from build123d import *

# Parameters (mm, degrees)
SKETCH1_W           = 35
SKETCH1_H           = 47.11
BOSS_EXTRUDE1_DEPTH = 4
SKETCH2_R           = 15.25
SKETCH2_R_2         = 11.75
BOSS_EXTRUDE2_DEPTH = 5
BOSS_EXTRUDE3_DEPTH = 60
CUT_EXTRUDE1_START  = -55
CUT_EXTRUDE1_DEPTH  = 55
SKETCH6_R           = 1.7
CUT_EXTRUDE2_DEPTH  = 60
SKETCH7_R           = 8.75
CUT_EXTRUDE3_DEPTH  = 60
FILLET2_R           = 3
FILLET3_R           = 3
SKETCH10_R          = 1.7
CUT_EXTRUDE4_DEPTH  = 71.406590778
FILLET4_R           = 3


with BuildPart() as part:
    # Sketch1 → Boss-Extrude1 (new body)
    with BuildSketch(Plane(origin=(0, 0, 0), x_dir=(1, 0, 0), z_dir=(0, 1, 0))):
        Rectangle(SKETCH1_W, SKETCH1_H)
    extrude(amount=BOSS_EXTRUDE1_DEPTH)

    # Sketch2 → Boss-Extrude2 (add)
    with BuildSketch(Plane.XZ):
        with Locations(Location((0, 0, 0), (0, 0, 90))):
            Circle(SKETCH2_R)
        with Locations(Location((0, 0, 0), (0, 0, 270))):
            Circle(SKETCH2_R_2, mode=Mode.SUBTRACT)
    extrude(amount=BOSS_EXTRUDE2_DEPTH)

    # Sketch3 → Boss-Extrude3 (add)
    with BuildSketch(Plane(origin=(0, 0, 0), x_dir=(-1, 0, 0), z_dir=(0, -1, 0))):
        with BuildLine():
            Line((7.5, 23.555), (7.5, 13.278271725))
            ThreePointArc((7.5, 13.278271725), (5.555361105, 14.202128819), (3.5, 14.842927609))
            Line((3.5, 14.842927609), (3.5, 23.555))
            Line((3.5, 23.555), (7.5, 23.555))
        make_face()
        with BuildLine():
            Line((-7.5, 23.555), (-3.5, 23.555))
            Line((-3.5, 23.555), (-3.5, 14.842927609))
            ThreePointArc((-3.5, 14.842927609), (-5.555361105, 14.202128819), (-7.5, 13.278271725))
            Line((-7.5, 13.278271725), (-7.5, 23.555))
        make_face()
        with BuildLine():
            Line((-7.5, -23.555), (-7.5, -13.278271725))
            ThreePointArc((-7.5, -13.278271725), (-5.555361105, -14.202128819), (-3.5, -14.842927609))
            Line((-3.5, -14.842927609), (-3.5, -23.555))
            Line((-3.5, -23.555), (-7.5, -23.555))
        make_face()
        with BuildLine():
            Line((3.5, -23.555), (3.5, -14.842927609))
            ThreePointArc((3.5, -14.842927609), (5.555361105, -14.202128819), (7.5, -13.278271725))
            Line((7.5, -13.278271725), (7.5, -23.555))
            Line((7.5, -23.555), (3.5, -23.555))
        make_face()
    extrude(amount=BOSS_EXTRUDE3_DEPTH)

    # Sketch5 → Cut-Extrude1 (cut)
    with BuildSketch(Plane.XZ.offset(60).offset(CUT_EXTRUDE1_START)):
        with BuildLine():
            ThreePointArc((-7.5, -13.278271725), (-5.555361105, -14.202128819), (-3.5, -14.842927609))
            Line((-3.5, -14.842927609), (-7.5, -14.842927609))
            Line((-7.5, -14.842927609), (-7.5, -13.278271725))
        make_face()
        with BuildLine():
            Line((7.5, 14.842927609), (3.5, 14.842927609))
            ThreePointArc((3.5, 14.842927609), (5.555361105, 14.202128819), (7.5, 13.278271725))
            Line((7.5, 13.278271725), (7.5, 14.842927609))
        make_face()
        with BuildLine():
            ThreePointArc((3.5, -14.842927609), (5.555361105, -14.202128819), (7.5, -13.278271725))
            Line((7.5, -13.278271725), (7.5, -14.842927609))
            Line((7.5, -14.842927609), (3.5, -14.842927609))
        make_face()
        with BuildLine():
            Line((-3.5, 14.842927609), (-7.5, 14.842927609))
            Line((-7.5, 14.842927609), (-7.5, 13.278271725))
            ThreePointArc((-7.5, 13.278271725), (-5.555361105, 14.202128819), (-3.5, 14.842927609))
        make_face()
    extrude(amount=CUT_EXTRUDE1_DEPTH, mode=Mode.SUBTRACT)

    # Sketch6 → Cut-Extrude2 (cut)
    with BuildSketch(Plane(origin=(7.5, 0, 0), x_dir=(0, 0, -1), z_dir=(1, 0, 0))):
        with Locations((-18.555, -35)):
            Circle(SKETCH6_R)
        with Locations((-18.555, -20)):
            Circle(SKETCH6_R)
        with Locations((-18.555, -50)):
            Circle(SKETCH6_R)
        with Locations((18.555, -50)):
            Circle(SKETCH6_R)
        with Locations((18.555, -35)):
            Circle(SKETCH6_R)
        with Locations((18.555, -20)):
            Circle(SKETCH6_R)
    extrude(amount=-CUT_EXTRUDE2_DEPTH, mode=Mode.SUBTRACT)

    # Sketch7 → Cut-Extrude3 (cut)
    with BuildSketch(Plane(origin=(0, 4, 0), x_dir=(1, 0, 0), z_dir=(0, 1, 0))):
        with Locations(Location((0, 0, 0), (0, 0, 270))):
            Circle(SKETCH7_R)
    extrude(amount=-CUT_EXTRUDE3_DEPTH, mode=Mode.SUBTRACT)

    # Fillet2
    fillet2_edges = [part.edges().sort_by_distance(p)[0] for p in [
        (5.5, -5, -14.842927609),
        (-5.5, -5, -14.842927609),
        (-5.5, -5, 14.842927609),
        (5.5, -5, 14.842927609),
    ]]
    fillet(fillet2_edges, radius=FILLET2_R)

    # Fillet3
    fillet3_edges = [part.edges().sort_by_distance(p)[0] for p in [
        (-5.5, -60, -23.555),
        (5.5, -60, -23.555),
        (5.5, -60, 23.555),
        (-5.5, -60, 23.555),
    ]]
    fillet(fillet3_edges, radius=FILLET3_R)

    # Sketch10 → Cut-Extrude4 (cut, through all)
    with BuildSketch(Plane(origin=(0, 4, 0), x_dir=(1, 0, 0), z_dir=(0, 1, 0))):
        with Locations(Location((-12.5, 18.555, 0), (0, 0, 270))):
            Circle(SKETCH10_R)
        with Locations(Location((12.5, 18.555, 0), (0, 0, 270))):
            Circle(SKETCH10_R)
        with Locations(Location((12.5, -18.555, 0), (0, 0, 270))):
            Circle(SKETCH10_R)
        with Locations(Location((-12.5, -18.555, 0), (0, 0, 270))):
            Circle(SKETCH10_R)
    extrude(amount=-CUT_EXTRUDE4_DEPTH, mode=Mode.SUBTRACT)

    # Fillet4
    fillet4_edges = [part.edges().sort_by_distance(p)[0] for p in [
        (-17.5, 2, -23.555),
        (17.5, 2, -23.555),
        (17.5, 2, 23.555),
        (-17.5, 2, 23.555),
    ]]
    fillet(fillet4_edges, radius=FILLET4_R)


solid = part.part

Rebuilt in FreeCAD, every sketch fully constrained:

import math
import FreeCAD as App
import Part
import Sketcher


def edges_at(feature, points):
    """Names of the edges that pass closest to the given points."""
    edges = feature.Shape.Edges
    near = lambda p: min(range(len(edges)), key=lambda i: edges[i].distToShape(Part.Vertex(*p))[0])
    return sorted({f"Edge{near(p) + 1}" for p in points})


def add_polygon(sketch, points):
    """Adds a closed chain of lines whose ends are joined by coincident constraints."""
    first, n = sketch.GeometryCount, len(points)
    for a, b in zip(points, points[1:] + points[:1]):
        sketch.addGeometry(Part.LineSegment(App.Vector(*a, 0), App.Vector(*b, 0)), False)
    for i in range(n):
        sketch.addConstraint(Sketcher.Constraint("Coincident", first + i, 2, first + (i + 1) % n, 1))

doc = App.newDocument("Part")
body = doc.addObject("PartDesign::Body", "Body")

sketch1 = doc.addObject("Sketcher::SketchObject", "Sketch")
body.addObject(sketch1)
sketch1.AttachmentSupport = (doc.XZ_Plane, [""])
sketch1.MapMode = "FlatFace"
add_polygon(sketch1, [(-18, -24), (-18, 24), (18, 24), (18, -24)])
sketch1.addConstraint(Sketcher.Constraint("Vertical", 0))
sketch1.addConstraint(Sketcher.Constraint("Horizontal", 1))
sketch1.addConstraint(Sketcher.Constraint("Vertical", 2))
sketch1.addConstraint(Sketcher.Constraint("Horizontal", 3))
sketch1.addConstraint(Sketcher.Constraint("Symmetric", 0, 2, 2, 2, -1, 1))
sketch1.addConstraint(Sketcher.Constraint("DistanceX", 1, 1, 1, 2, 35.0))
sketch1.addConstraint(Sketcher.Constraint("DistanceY", 0, 1, 0, 2, 47.11))
pad1 = doc.addObject("PartDesign::Pad", "Pad")
body.addObject(pad1)
pad1.Profile = sketch1
pad1.Length = 4
pad1.Reversed = True

sketch2 = doc.addObject("Sketcher::SketchObject", "Sketch001")
body.addObject(sketch2)
sketch2.AttachmentSupport = (doc.XZ_Plane, [""])
sketch2.MapMode = "FlatFace"
sketch2.addGeometry(Part.Circle(App.Vector(0, 0, 0), App.Vector(0, 0, 1), 15), False)
sketch2.addGeometry(Part.Circle(App.Vector(0, 0, 0), App.Vector(0, 0, 1), 12), False)
sketch2.addConstraint(Sketcher.Constraint("Coincident", 0, 3, -1, 1))
sketch2.addConstraint(Sketcher.Constraint("Coincident", 1, 3, -1, 1))
sketch2.addConstraint(Sketcher.Constraint("Diameter", 0, 30.5))
sketch2.addConstraint(Sketcher.Constraint("Diameter", 1, 23.5))
pad2 = doc.addObject("PartDesign::Pad", "Pad001")
body.addObject(pad2)
pad2.Profile = sketch2
pad2.Length = 5

sketch3 = doc.addObject("Sketcher::SketchObject", "Sketch002")
body.addObject(sketch3)
sketch3.AttachmentSupport = (doc.XZ_Plane, [""])
sketch3.MapMode = "FlatFace"
sketch3.addGeometry(Part.LineSegment(App.Vector(-7.5, -13.3, 0), App.Vector(-7.5, -23.6, 0)), False)
sketch3.addGeometry(Part.LineSegment(App.Vector(-7.5, -23.6, 0), App.Vector(-3.5, -23.6, 0)), False)
sketch3.addGeometry(Part.LineSegment(App.Vector(-3.5, -23.6, 0), App.Vector(-3.5, -14.8, 0)), False)
sketch3.addGeometry(Part.ArcOfCircle(Part.Circle(App.Vector(0, 0, 0), App.Vector(0, 0, 1), 15.3), math.radians(-119.46), math.radians(-103.27)), False)
sketch3.addGeometry(Part.LineSegment(App.Vector(3.5, -23.6, 0), App.Vector(7.5, -23.6, 0)), False)
sketch3.addGeometry(Part.LineSegment(App.Vector(7.5, -23.6, 0), App.Vector(7.5, -13.3, 0)), False)
sketch3.addGeometry(Part.ArcOfCircle(Part.Circle(App.Vector(0, 0, 0), App.Vector(0, 0, 1), 15.3), math.radians(-76.73), math.radians(-60.54)), False)
sketch3.addGeometry(Part.LineSegment(App.Vector(3.5, -14.8, 0), App.Vector(3.5, -23.6, 0)), False)
sketch3.addGeometry(Part.LineSegment(App.Vector(7.5, 13.3, 0), App.Vector(7.5, 23.6, 0)), False)
sketch3.addGeometry(Part.LineSegment(App.Vector(7.5, 23.6, 0), App.Vector(3.5, 23.6, 0)), False)
sketch3.addGeometry(Part.LineSegment(App.Vector(3.5, 23.6, 0), App.Vector(3.5, 14.8, 0)), False)
sketch3.addGeometry(Part.ArcOfCircle(Part.Circle(App.Vector(0, 0, 0), App.Vector(0, 0, 1), 15.3), math.radians(60.54), math.radians(76.73)), False)
sketch3.addGeometry(Part.LineSegment(App.Vector(-3.5, 14.8, 0), App.Vector(-3.5, 23.6, 0)), False)
sketch3.addGeometry(Part.LineSegment(App.Vector(-3.5, 23.6, 0), App.Vector(-7.5, 23.6, 0)), False)
sketch3.addGeometry(Part.LineSegment(App.Vector(-7.5, 23.6, 0), App.Vector(-7.5, 13.3, 0)), False)
sketch3.addGeometry(Part.ArcOfCircle(Part.Circle(App.Vector(0, 0, 0), App.Vector(0, 0, 1), 15.3), math.radians(103.27), math.radians(119.46)), False)
sketch3.addConstraint(Sketcher.Constraint("Coincident", 0, 2, 1, 1))
sketch3.addConstraint(Sketcher.Constraint("Coincident", 1, 2, 2, 1))
sketch3.addConstraint(Sketcher.Constraint("Coincident", 2, 2, 3, 2))
sketch3.addConstraint(Sketcher.Constraint("Coincident", 3, 1, 0, 1))
sketch3.addConstraint(Sketcher.Constraint("Coincident", 4, 2, 5, 1))
sketch3.addConstraint(Sketcher.Constraint("Coincident", 5, 2, 6, 2))
sketch3.addConstraint(Sketcher.Constraint("Coincident", 6, 1, 7, 1))
sketch3.addConstraint(Sketcher.Constraint("Coincident", 7, 2, 4, 1))
sketch3.addConstraint(Sketcher.Constraint("Coincident", 8, 2, 9, 1))
sketch3.addConstraint(Sketcher.Constraint("Coincident", 9, 2, 10, 1))
sketch3.addConstraint(Sketcher.Constraint("Coincident", 10, 2, 11, 2))
sketch3.addConstraint(Sketcher.Constraint("Coincident", 11, 1, 8, 1))
sketch3.addConstraint(Sketcher.Constraint("Coincident", 12, 2, 13, 1))
sketch3.addConstraint(Sketcher.Constraint("Coincident", 13, 2, 14, 1))
sketch3.addConstraint(Sketcher.Constraint("Coincident", 14, 2, 15, 2))
sketch3.addConstraint(Sketcher.Constraint("Coincident", 15, 1, 12, 1))
sketch3.addConstraint(Sketcher.Constraint("Vertical", 0))
sketch3.addConstraint(Sketcher.Constraint("Horizontal", 1))
sketch3.addConstraint(Sketcher.Constraint("Vertical", 2))
sketch3.addConstraint(Sketcher.Constraint("Horizontal", 4))
sketch3.addConstraint(Sketcher.Constraint("Vertical", 5))
sketch3.addConstraint(Sketcher.Constraint("Vertical", 7))
sketch3.addConstraint(Sketcher.Constraint("Vertical", 8))
sketch3.addConstraint(Sketcher.Constraint("Horizontal", 9))
sketch3.addConstraint(Sketcher.Constraint("Vertical", 10))
sketch3.addConstraint(Sketcher.Constraint("Vertical", 12))
sketch3.addConstraint(Sketcher.Constraint("Horizontal", 13))
sketch3.addConstraint(Sketcher.Constraint("Vertical", 14))
sketch3.addConstraint(Sketcher.Constraint("Coincident", 3, 3, -1, 1))
sketch3.addConstraint(Sketcher.Constraint("Coincident", 6, 3, -1, 1))
sketch3.addConstraint(Sketcher.Constraint("Coincident", 11, 3, -1, 1))
sketch3.addConstraint(Sketcher.Constraint("Coincident", 15, 3, -1, 1))
sketch3.addConstraint(Sketcher.Constraint("Equal", 3, 6))
sketch3.addConstraint(Sketcher.Constraint("Equal", 6, 11))
sketch3.addConstraint(Sketcher.Constraint("Equal", 11, 15))
sketch3.addConstraint(Sketcher.Constraint("Symmetric", 0, 2, 8, 2, -1, 1))
sketch3.addConstraint(Sketcher.Constraint("Symmetric", 7, 2, 12, 2, -1, 1))
sketch3.addConstraint(Sketcher.Constraint("Symmetric", 0, 2, 4, 2, -2))
sketch3.addConstraint(Sketcher.Constraint("Horizontal", 2, 2, 6, 1))
sketch3.addConstraint(Sketcher.Constraint("Horizontal", 11, 1, 14, 2))
sketch3.addConstraint(Sketcher.Constraint("Horizontal", 10, 2, 15, 1))
sketch3.addConstraint(Sketcher.Constraint("DistanceX", 1, 1, 1, 2, 4.0))
sketch3.addConstraint(Sketcher.Constraint("Radius", 3, 15.25))
sketch3.addConstraint(Sketcher.Constraint("DistanceX", 1, 2, 4, 2, 11.0))
sketch3.addConstraint(Sketcher.Constraint("DistanceY", 0, 2, -1, 1, 23.555))
pad3 = doc.addObject("PartDesign::Pad", "Pad002")
body.addObject(pad3)
pad3.Profile = sketch3
pad3.Length = 60

sketch4 = doc.addObject("Sketcher::SketchObject", "Sketch003")
body.addObject(sketch4)
sketch4.AttachmentSupport = (doc.XZ_Plane, [""])
sketch4.MapMode = "FlatFace"
sketch4.AttachmentOffset = App.Placement(App.Vector(0, 0, 5), App.Rotation())
sketch4.addGeometry(Part.ArcOfCircle(Part.Circle(App.Vector(0, 0, 0), App.Vector(0, 0, 1), 15.3), math.radians(-119.46), math.radians(-103.27)), False)
sketch4.addGeometry(Part.LineSegment(App.Vector(-7.5, -13.3, 0), App.Vector(-7.5, -14.8, 0)), False)
sketch4.addGeometry(Part.LineSegment(App.Vector(-7.5, -14.8, 0), App.Vector(-3.5, -14.8, 0)), False)
sketch4.addGeometry(Part.LineSegment(App.Vector(7.5, 14.8, 0), App.Vector(3.5, 14.8, 0)), False)
sketch4.addGeometry(Part.ArcOfCircle(Part.Circle(App.Vector(0, 0, 0), App.Vector(0, 0, 1), 15.3), math.radians(60.54), math.radians(76.73)), False)
sketch4.addGeometry(Part.LineSegment(App.Vector(7.5, 13.3, 0), App.Vector(7.5, 14.8, 0)), False)
sketch4.addGeometry(Part.ArcOfCircle(Part.Circle(App.Vector(0, 0, 0), App.Vector(0, 0, 1), 15.3), math.radians(-76.73), math.radians(-60.54)), False)
sketch4.addGeometry(Part.LineSegment(App.Vector(3.5, -14.8, 0), App.Vector(7.5, -14.8, 0)), False)
sketch4.addGeometry(Part.LineSegment(App.Vector(7.5, -14.8, 0), App.Vector(7.5, -13.3, 0)), False)
sketch4.addGeometry(Part.LineSegment(App.Vector(-3.5, 14.8, 0), App.Vector(-7.5, 14.8, 0)), False)
sketch4.addGeometry(Part.LineSegment(App.Vector(-7.5, 14.8, 0), App.Vector(-7.5, 13.3, 0)), False)
sketch4.addGeometry(Part.ArcOfCircle(Part.Circle(App.Vector(0, 0, 0), App.Vector(0, 0, 1), 15.3), math.radians(103.27), math.radians(119.46)), False)
sketch4.addConstraint(Sketcher.Constraint("Coincident", 0, 1, 1, 1))
sketch4.addConstraint(Sketcher.Constraint("Coincident", 1, 2, 2, 1))
sketch4.addConstraint(Sketcher.Constraint("Coincident", 2, 2, 0, 2))
sketch4.addConstraint(Sketcher.Constraint("Coincident", 3, 2, 4, 2))
sketch4.addConstraint(Sketcher.Constraint("Coincident", 4, 1, 5, 1))
sketch4.addConstraint(Sketcher.Constraint("Coincident", 5, 2, 3, 1))
sketch4.addConstraint(Sketcher.Constraint("Coincident", 6, 1, 7, 1))
sketch4.addConstraint(Sketcher.Constraint("Coincident", 7, 2, 8, 1))
sketch4.addConstraint(Sketcher.Constraint("Coincident", 8, 2, 6, 2))
sketch4.addConstraint(Sketcher.Constraint("Coincident", 9, 2, 10, 1))
sketch4.addConstraint(Sketcher.Constraint("Coincident", 10, 2, 11, 2))
sketch4.addConstraint(Sketcher.Constraint("Coincident", 11, 1, 9, 1))
sketch4.addConstraint(Sketcher.Constraint("Vertical", 1))
sketch4.addConstraint(Sketcher.Constraint("Horizontal", 2))
sketch4.addConstraint(Sketcher.Constraint("Horizontal", 3))
sketch4.addConstraint(Sketcher.Constraint("Vertical", 5))
sketch4.addConstraint(Sketcher.Constraint("Horizontal", 7))
sketch4.addConstraint(Sketcher.Constraint("Vertical", 8))
sketch4.addConstraint(Sketcher.Constraint("Horizontal", 9))
sketch4.addConstraint(Sketcher.Constraint("Vertical", 10))
sketch4.addConstraint(Sketcher.Constraint("Coincident", 0, 3, -1, 1))
sketch4.addConstraint(Sketcher.Constraint("Coincident", 4, 3, -1, 1))
sketch4.addConstraint(Sketcher.Constraint("Coincident", 6, 3, -1, 1))
sketch4.addConstraint(Sketcher.Constraint("Coincident", 11, 3, -1, 1))
sketch4.addConstraint(Sketcher.Constraint("Equal", 0, 4))
sketch4.addConstraint(Sketcher.Constraint("Equal", 4, 6))
sketch4.addConstraint(Sketcher.Constraint("Equal", 6, 11))
sketch4.addConstraint(Sketcher.Constraint("Symmetric", 1, 2, 5, 2, -1, 1))
sketch4.addConstraint(Sketcher.Constraint("Symmetric", 7, 2, 9, 2, -1, 1))
sketch4.addConstraint(Sketcher.Constraint("Symmetric", 1, 2, 7, 2, -2))
sketch4.addConstraint(Sketcher.Constraint("DistanceX", 2, 1, 2, 2, 4.0))
sketch4.addConstraint(Sketcher.Constraint("Radius", 0, 15.25))
sketch4.addConstraint(Sketcher.Constraint("DistanceX", 0, 1, 3, 2, 11.0))
pocket1 = doc.addObject("PartDesign::Pocket", "Pocket")
body.addObject(pocket1)
pocket1.Profile = sketch4
pocket1.Length = 55
pocket1.Reversed = True

sketch5 = doc.addObject("Sketcher::SketchObject", "Sketch004")
body.addObject(sketch5)
sketch5.AttachmentSupport = (doc.YZ_Plane, [""])
sketch5.MapMode = "FlatFace"
sketch5.AttachmentOffset = App.Placement(App.Vector(0, 0, 7.5), App.Rotation())
sketch5.addGeometry(Part.Circle(App.Vector(-35, 18.6, 0), App.Vector(0, 0, 1), 1.7), False)
sketch5.addGeometry(Part.Circle(App.Vector(-20, 18.6, 0), App.Vector(0, 0, 1), 1.7), False)
sketch5.addGeometry(Part.Circle(App.Vector(-50, 18.6, 0), App.Vector(0, 0, 1), 1.7), False)
sketch5.addGeometry(Part.Circle(App.Vector(-50, -18.6, 0), App.Vector(0, 0, 1), 1.7), False)
sketch5.addGeometry(Part.Circle(App.Vector(-35, -18.6, 0), App.Vector(0, 0, 1), 1.7), False)
sketch5.addGeometry(Part.Circle(App.Vector(-20, -18.6, 0), App.Vector(0, 0, 1), 1.7), False)
sketch5.addConstraint(Sketcher.Constraint("Equal", 0, 1))
sketch5.addConstraint(Sketcher.Constraint("Equal", 1, 2))
sketch5.addConstraint(Sketcher.Constraint("Equal", 2, 3))
sketch5.addConstraint(Sketcher.Constraint("Equal", 3, 4))
sketch5.addConstraint(Sketcher.Constraint("Equal", 4, 5))
sketch5.addConstraint(Sketcher.Constraint("Symmetric", 2, 3, 3, 3, -1))
sketch5.addConstraint(Sketcher.Constraint("Symmetric", 0, 3, 4, 3, -1))
sketch5.addConstraint(Sketcher.Constraint("Symmetric", 1, 3, 5, 3, -1))
sketch5.addConstraint(Sketcher.Constraint("Horizontal", 0, 3, 1, 3))
sketch5.addConstraint(Sketcher.Constraint("Horizontal", 1, 3, 2, 3))
sketch5.addConstraint(Sketcher.Constraint("Diameter", 0, 3.4))
sketch5.addConstraint(Sketcher.Constraint("DistanceX", 0, 3, -1, 1, 35.0))
sketch5.addConstraint(Sketcher.Constraint("DistanceX", 1, 3, -1, 1, 20.0))
sketch5.addConstraint(Sketcher.Constraint("DistanceX", 2, 3, -1, 1, 50.0))
sketch5.addConstraint(Sketcher.Constraint("DistanceY", 3, 3, 2, 3, 37.11))
pocket2 = doc.addObject("PartDesign::Pocket", "Pocket001")
body.addObject(pocket2)
pocket2.Profile = sketch5
pocket2.Length = 60

sketch6 = doc.addObject("Sketcher::SketchObject", "Sketch005")
body.addObject(sketch6)
sketch6.AttachmentSupport = (doc.XZ_Plane, [""])
sketch6.MapMode = "FlatFace"
sketch6.AttachmentOffset = App.Placement(App.Vector(0, 0, -4), App.Rotation())
sketch6.addGeometry(Part.Circle(App.Vector(0, 0, 0), App.Vector(0, 0, 1), 9), False)
sketch6.addConstraint(Sketcher.Constraint("Coincident", 0, 3, -1, 1))
sketch6.addConstraint(Sketcher.Constraint("Diameter", 0, 17.5))
pocket3 = doc.addObject("PartDesign::Pocket", "Pocket002")
body.addObject(pocket3)
pocket3.Profile = sketch6
pocket3.Length = 60
pocket3.Reversed = True
doc.recompute()

fillet = doc.addObject("PartDesign::Fillet", "Fillet")
body.addObject(fillet)
fillet.Base = (pocket3, edges_at(pocket3, [
    (5.5, -5, -14.843),
    (-5.5, -5, -14.843),
    (-5.5, -5, 14.843),
    (5.5, -5, 14.843),
]))
fillet.Radius = 3
doc.recompute()

fillet2 = doc.addObject("PartDesign::Fillet", "Fillet001")
body.addObject(fillet2)
fillet2.Base = (fillet, edges_at(fillet, [
    (-5.5, -60, -23.555),
    (5.5, -60, -23.555),
    (5.5, -60, 23.555),
    (-5.5, -60, 23.555),
]))
fillet2.Radius = 3

sketch7 = doc.addObject("Sketcher::SketchObject", "Sketch006")
body.addObject(sketch7)
sketch7.AttachmentSupport = (doc.XZ_Plane, [""])
sketch7.MapMode = "FlatFace"
sketch7.AttachmentOffset = App.Placement(App.Vector(0, 0, -4), App.Rotation())
sketch7.addGeometry(Part.Circle(App.Vector(-12.5, -18.6, 0), App.Vector(0, 0, 1), 1.7), False)
sketch7.addGeometry(Part.Circle(App.Vector(12.5, -18.6, 0), App.Vector(0, 0, 1), 1.7), False)
sketch7.addGeometry(Part.Circle(App.Vector(12.5, 18.6, 0), App.Vector(0, 0, 1), 1.7), False)
sketch7.addGeometry(Part.Circle(App.Vector(-12.5, 18.6, 0), App.Vector(0, 0, 1), 1.7), False)
sketch7.addConstraint(Sketcher.Constraint("Equal", 0, 1))
sketch7.addConstraint(Sketcher.Constraint("Equal", 1, 2))
sketch7.addConstraint(Sketcher.Constraint("Equal", 2, 3))
sketch7.addConstraint(Sketcher.Constraint("Symmetric", 0, 3, 2, 3, -1, 1))
sketch7.addConstraint(Sketcher.Constraint("Symmetric", 1, 3, 3, 3, -1, 1))
sketch7.addConstraint(Sketcher.Constraint("Symmetric", 0, 3, 1, 3, -2))
sketch7.addConstraint(Sketcher.Constraint("Diameter", 0, 3.4))
sketch7.addConstraint(Sketcher.Constraint("DistanceX", 0, 3, 1, 3, 25.0))
sketch7.addConstraint(Sketcher.Constraint("DistanceY", 1, 3, 2, 3, 37.11))
pocket4 = doc.addObject("PartDesign::Pocket", "Pocket003")
body.addObject(pocket4)
pocket4.Profile = sketch7
pocket4.Type = "ThroughAll"
pocket4.Reversed = True
doc.recompute()

fillet3 = doc.addObject("PartDesign::Fillet", "Fillet002")
body.addObject(fillet3)
fillet3.Base = (pocket4, edges_at(pocket4, [
    (-17.5, 2, -23.555),
    (17.5, 2, -23.555),
    (17.5, 2, 23.555),
    (-17.5, 2, 23.555),
]))
fillet3.Radius = 3

doc.recompute()
